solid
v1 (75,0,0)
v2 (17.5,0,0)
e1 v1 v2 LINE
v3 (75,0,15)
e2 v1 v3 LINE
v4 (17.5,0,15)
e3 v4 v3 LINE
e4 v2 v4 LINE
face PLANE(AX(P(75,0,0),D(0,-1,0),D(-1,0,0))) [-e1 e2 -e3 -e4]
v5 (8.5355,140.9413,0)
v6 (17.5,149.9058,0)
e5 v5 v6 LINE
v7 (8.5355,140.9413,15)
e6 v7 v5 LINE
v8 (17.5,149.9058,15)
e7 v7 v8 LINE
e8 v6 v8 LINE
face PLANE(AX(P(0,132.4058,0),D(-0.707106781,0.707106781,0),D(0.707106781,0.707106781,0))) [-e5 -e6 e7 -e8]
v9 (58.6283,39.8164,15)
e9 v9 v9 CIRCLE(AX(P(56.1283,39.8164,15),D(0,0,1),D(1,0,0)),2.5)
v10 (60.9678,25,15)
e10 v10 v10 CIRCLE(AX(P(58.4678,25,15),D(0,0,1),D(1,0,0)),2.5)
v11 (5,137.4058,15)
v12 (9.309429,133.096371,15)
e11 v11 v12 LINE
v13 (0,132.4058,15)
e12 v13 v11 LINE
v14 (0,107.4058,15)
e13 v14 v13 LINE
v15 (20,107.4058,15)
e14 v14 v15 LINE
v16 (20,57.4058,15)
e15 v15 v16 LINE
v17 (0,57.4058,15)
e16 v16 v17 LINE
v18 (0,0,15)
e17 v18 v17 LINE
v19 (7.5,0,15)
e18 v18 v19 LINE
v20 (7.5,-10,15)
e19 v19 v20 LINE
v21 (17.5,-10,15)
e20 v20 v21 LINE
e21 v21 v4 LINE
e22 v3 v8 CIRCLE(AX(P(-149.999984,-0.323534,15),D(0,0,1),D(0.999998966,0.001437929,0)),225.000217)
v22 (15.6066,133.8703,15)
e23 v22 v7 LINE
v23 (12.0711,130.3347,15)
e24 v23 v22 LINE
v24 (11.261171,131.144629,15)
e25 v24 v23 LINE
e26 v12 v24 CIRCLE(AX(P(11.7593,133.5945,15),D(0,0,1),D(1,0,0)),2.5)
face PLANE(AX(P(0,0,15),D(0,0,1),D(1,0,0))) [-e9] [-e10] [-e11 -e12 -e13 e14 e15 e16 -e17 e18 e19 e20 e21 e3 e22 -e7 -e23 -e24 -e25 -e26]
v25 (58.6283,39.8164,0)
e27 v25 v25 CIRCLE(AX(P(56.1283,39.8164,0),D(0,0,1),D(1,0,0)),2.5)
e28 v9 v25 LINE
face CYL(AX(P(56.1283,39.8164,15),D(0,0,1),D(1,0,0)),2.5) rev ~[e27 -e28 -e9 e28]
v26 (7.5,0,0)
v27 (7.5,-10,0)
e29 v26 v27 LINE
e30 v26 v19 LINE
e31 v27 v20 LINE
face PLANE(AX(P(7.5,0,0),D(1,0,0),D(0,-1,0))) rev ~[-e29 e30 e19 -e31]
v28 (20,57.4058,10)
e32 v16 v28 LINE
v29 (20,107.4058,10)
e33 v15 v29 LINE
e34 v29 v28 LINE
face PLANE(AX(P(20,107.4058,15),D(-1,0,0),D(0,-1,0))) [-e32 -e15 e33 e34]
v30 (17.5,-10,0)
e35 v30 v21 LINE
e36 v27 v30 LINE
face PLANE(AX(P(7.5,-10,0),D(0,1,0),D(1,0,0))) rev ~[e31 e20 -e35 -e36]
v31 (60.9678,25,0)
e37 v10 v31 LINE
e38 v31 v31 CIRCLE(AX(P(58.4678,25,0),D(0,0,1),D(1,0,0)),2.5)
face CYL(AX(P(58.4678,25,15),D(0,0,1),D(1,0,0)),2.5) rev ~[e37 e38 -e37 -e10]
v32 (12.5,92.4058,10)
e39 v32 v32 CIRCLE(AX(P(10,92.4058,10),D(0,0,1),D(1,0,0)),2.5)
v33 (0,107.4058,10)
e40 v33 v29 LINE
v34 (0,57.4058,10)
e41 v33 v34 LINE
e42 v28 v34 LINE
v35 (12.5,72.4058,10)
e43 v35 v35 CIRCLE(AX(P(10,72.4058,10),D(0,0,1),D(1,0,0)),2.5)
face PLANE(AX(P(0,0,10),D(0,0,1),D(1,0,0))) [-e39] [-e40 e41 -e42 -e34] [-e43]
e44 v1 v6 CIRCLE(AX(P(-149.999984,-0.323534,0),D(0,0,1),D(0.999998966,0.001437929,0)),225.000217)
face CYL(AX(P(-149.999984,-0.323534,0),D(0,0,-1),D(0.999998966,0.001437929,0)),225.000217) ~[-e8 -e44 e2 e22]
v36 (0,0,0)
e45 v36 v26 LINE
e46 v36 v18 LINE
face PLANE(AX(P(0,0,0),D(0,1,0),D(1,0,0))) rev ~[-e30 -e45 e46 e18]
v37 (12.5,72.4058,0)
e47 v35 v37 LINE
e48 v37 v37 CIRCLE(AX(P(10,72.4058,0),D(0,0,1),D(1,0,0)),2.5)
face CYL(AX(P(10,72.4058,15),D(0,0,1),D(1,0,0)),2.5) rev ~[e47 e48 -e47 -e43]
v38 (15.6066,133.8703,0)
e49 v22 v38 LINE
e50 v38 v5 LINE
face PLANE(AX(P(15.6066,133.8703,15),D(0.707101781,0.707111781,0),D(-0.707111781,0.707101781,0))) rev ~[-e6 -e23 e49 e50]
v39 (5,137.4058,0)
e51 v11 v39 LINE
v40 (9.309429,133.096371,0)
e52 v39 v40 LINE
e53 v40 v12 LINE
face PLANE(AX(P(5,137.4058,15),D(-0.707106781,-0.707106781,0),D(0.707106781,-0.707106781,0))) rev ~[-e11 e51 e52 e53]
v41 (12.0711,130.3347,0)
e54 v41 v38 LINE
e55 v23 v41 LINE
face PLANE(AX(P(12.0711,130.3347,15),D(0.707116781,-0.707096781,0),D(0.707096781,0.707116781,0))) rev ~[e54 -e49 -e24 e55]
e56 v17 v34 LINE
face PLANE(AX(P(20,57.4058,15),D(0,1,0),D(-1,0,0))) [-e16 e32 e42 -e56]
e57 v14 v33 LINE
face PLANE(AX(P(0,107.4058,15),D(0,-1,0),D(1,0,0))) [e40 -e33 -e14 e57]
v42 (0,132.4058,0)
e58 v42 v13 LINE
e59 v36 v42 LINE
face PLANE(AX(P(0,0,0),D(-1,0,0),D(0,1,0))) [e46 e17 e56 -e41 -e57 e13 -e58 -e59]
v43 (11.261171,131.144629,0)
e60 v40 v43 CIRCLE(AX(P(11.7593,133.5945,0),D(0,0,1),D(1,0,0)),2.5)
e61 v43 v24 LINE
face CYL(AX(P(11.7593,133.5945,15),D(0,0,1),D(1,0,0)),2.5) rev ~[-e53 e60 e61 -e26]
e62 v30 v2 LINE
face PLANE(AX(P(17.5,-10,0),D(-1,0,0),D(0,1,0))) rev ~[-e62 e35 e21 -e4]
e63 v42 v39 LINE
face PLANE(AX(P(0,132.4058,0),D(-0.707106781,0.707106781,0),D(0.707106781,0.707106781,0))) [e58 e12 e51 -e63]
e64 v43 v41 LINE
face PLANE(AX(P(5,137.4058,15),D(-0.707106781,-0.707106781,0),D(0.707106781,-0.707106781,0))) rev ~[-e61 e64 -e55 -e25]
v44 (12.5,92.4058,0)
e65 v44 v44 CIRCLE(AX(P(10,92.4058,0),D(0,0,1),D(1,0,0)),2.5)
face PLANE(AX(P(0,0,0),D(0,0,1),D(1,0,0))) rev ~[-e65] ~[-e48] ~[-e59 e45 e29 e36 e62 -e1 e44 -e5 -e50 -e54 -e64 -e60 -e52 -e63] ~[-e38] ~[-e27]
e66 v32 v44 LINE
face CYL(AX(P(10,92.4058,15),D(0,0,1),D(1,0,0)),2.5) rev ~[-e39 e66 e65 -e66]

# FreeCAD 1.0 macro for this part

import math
import FreeCAD as App
import Part
import Sketcher
Q = App.Units.Quantity


def add_polygon(sketch, points):
    """Adds a closed chain of lines whose ends are joined by coincident constraints."""
    first, n = sketch.GeometryCount, len(points)
    for a, b in zip(points, points[1:] + points[:1]):
        sketch.addGeometry(Part.LineSegment(App.Vector(*a, 0), App.Vector(*b, 0)), False)
    for i in range(n):
        sketch.addConstraint(Sketcher.Constraint("Coincident", first + i, 2, first + (i + 1) % n, 1))

doc = App.newDocument("Part")
params = doc.addObject("Spreadsheet::Sheet", "Params")
for row, (alias, value) in enumerate([
    ("sketch1_radius", "225 mm"),
    ("sketch1_width", "10 mm"),
    ("sketch1_width2", "7.5 mm"),
    ("pad1_length", "15 mm"),
    ("sketch2_diameter", "5 mm"),
    ("sketch3_length", "5 mm"),
    ("sketch3_length2", "10 mm"),
    ("sketch4_diameter", "5 mm"),
    ("sketch5_width", "20 mm"),
    ("sketch5_height", "50 mm"),
    ("pocket4_length", "5 mm"),
], start=1):
    params.set(f"A{row}", alias)
    params.set(f"B{row}", "=" + value)
    params.setAlias(f"B{row}", alias)

body = doc.addObject("PartDesign::Body", "Body")

# Sketch on XY plane
sketch1 = body.newObject("Sketcher::SketchObject", "Sketch")
sketch1.AttachmentSupport = (doc.getObject("XY_Plane"), [""])
sketch1.MapMode = "FlatFace"
sketch1.addGeometry([
    Part.LineSegment(App.Vector(0, 132, 0), App.Vector(0, 0, 0)),  # 0
    Part.LineSegment(App.Vector(0, 0, 0), App.Vector(8, 0, 0)),  # 1
    Part.LineSegment(App.Vector(8, 0, 0), App.Vector(8, -10, 0)),  # 2
    Part.LineSegment(App.Vector(8, -10, 0), App.Vector(18, -10, 0)),  # 3
    Part.LineSegment(App.Vector(18, -10, 0), App.Vector(18, 0, 0)),  # 4
    Part.LineSegment(App.Vector(18, 0, 0), App.Vector(75, 0, 0)),  # 5
    Part.ArcOfCircle(Part.Circle(App.Vector(-150, 0, 0), App.Vector(0, 0, 1), 225), math.radians(0), math.radians(42)),  # 6
    Part.LineSegment(App.Vector(18, 150, 0), App.Vector(0, 132, 0)),  # 7
], False)
sketch1.addConstraint([
    Sketcher.Constraint("Coincident", 0, 2, 1, 1),
    Sketcher.Constraint("Coincident", 1, 2, 2, 1),
    Sketcher.Constraint("Coincident", 2, 2, 3, 1),
    Sketcher.Constraint("Coincident", 3, 2, 4, 1),
    Sketcher.Constraint("Coincident", 4, 2, 5, 1),
    Sketcher.Constraint("Coincident", 5, 2, 6, 1),
    Sketcher.Constraint("Coincident", 6, 2, 7, 1),
    Sketcher.Constraint("Coincident", 7, 2, 0, 1),
    Sketcher.Constraint("Vertical", 0),
    Sketcher.Constraint("Horizontal", 1),
    Sketcher.Constraint("Vertical", 2),
    Sketcher.Constraint("Horizontal", 3),
    Sketcher.Constraint("Vertical", 4),
    Sketcher.Constraint("Horizontal", 5),
    Sketcher.Constraint("Coincident", 0, 2, -1, 1),
    Sketcher.Constraint("PointOnObject", 4, 2, -1),
    Sketcher.Constraint("Vertical", 4, 2, 6, 2),
    Sketcher.Constraint("Equal", 3, 2),
    Sketcher.Constraint("Radius", 6, 225.0),
    Sketcher.Constraint("DistanceX", 3, 1, 3, 2, 10.0),
    Sketcher.Constraint("DistanceX", 1, 1, 1, 2, 7.5),
    Sketcher.Constraint("DistanceX", -1, 1, 5, 2, 75.0),
    Sketcher.Constraint("Angle", 7, Q("-135 deg")),
    Sketcher.Constraint("DistanceY", -1, 1, 6, 2, 149.9058),
])
sketch1.setExpression("Constraints[18]", "Params.sketch1_radius")
sketch1.setExpression("Constraints[19]", "Params.sketch1_width")
sketch1.setExpression("Constraints[20]", "Params.sketch1_width2")
pad1 = body.newObject("PartDesign::Pad", "Pad")
pad1.Profile = sketch1
pad1.setExpression("Length", "Params.pad1_length")

# Sketch on XY plane
sketch2 = body.newObject("Sketcher::SketchObject", "Sketch001")
sketch2.AttachmentSupport = (doc.getObject("XY_Plane"), [""])
sketch2.MapMode = "FlatFace"
sketch2.AttachmentOffset = App.Placement(App.Vector(0, 0, 15), App.Rotation())
sketch2.addGeometry([
    Part.Circle(App.Vector(58.5, 25, 0), App.Vector(0, 0, 1), 2.5),
    Part.Circle(App.Vector(56.1, 39.8, 0), App.Vector(0, 0, 1), 2.5),
    Part.Circle(App.Vector(11.8, 133.6, 0), App.Vector(0, 0, 1), 2.5),
], False)
sketch2.addConstraint([
    Sketcher.Constraint("Equal", 0, 1),
    Sketcher.Constraint("Equal", 1, 2),
    Sketcher.Constraint("Diameter", 0, 5.0),
    Sketcher.Constraint("DistanceY", -1, 1, 0, 3, 25.0),
    Sketcher.Constraint("DistanceX", 2, 3, 1, 3, 44.369),
    Sketcher.Constraint("DistanceY", 1, 3, 2, 3, 93.778),
    Sketcher.Constraint("DistanceX", -1, 1, 0, 3, 58.4678),
    Sketcher.Constraint("DistanceX", -1, 1, 1, 3, 56.1283),
    Sketcher.Constraint("DistanceY", -1, 1, 1, 3, 39.8164),
])
sketch2.setExpression("Constraints[2]", "Params.sketch2_diameter")
pocket1 = body.newObject("PartDesign::Pocket", "Pocket")
pocket1.Profile = sketch2
pocket1.Type = "ThroughAll"

# Sketch on XY plane
sketch3 = body.newObject("Sketcher::SketchObject", "Sketch002")
sketch3.AttachmentSupport = (doc.getObject("XY_Plane"), [""])
sketch3.MapMode = "FlatFace"
sketch3.AttachmentOffset = App.Placement(App.Vector(0, 0, 15), App.Rotation())
add_polygon(sketch3, [(8.5, 140.9), (5, 137.4), (12.1, 130.3), (15.6, 133.9)])  # lines 0-3
sketch3.addConstraint([
    Sketcher.Constraint("Perpendicular", 0, 1),
    Sketcher.Constraint("Perpendicular", 1, 2),
    Sketcher.Constraint("Perpendicular", 2, 3),
    Sketcher.Constraint("Angle", 1, Q("-45 deg")),
    Sketcher.Constraint("Distance", 0, 5.0),
    Sketcher.Constraint("Distance", 1, 10.0),
    Sketcher.Constraint("DistanceX", -1, 1, 0, 2, 5.0),
    Sketcher.Constraint("DistanceY", -1, 1, 0, 2, 137.4058),
])
sketch3.setExpression("Constraints[8]", "Params.sketch3_length")
sketch3.setExpression("Constraints[9]", "Params.sketch3_length2")
pocket2 = body.newObject("PartDesign::Pocket", "Pocket001")
pocket2.Profile = sketch3
pocket2.Type = "ThroughAll"

# Sketch on XY plane
sketch4 = body.newObject("Sketcher::SketchObject", "Sketch003")
sketch4.AttachmentSupport = (doc.getObject("XY_Plane"), [""])
sketch4.MapMode = "FlatFace"
sketch4.AttachmentOffset = App.Placement(App.Vector(0, 0, 15), App.Rotation())
sketch4.addGeometry([
    Part.Circle(App.Vector(10, 92.4, 0), App.Vector(0, 0, 1), 2.5),
    Part.Circle(App.Vector(10, 72.4, 0), App.Vector(0, 0, 1), 2.5),
], False)
sketch4.addConstraint([
    Sketcher.Constraint("Equal", 0, 1),
    Sketcher.Constraint("Vertical", 0, 3, 1, 3),
    Sketcher.Constraint("Diameter", 0, 5.0),
    Sketcher.Constraint("DistanceX", -1, 1, 0, 3, 10.0),
    Sketcher.Constraint("DistanceY", 1, 3, 0, 3, 20.0),
    Sketcher.Constraint("DistanceY", -1, 1, 0, 3, 92.4058),
])
sketch4.setExpression("Constraints[2]", "Params.sketch4_diameter")
pocket3 = body.newObject("PartDesign::Pocket", "Pocket002")
pocket3.Profile = sketch4
pocket3.Type = "ThroughAll"

# Sketch on XY plane
sketch5 = body.newObject("Sketcher::SketchObject", "Sketch004")
sketch5.AttachmentSupport = (doc.getObject("XY_Plane"), [""])
sketch5.MapMode = "FlatFace"
sketch5.AttachmentOffset = App.Placement(App.Vector(0, 0, 15), App.Rotation())
add_polygon(sketch5, [(20, 107), (0, 107), (0, 57), (20, 57)])  # lines 0-3
sketch5.addConstraint([
    Sketcher.Constraint("Horizontal", 0),
    Sketcher.Constraint("Vertical", 1),
    Sketcher.Constraint("Horizontal", 2),
    Sketcher.Constraint("Vertical", 3),
    Sketcher.Constraint("PointOnObject", 0, 2, -2),
    Sketcher.Constraint("DistanceX", 0, 2, 0, 1, 20.0),
    Sketcher.Constraint("DistanceY", 1, 2, 1, 1, 50.0),
    Sketcher.Constraint("DistanceY", -1, 1, 0, 2, 107.4058),
])
sketch5.setExpression("Constraints[9]", "Params.sketch5_width")
sketch5.setExpression("Constraints[10]", "Params.sketch5_height")
pocket4 = body.newObject("PartDesign::Pocket", "Pocket003")
pocket4.Profile = sketch5
pocket4.setExpression("Length", "Params.pocket4_length")

doc.recompute()
